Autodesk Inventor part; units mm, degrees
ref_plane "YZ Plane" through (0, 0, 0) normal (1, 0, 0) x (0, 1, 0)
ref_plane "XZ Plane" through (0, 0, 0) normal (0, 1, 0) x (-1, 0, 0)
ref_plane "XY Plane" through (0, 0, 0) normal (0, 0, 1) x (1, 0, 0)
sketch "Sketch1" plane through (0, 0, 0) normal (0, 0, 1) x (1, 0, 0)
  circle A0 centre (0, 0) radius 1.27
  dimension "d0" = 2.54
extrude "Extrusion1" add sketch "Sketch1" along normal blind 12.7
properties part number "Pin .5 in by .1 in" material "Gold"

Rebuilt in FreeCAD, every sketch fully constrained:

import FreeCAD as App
import Part
import Sketcher
from FreeCAD import Vector
Q = App.Units.Quantity

doc = App.newDocument("Part")
body = doc.addObject("PartDesign::Body", "Body")

# Sketch on XY plane
sketch1 = doc.addObject("Sketcher::SketchObject", "Sketch")
body.addObject(sketch1)
sketch1.AttachmentSupport = (doc.XY_Plane, [""])
sketch1.MapMode = "FlatFace"
sketch1.addGeometry(Part.Circle(Vector(0, 0, 0), Vector(0, 0, 1), 1.3), False)
sketch1.addConstraint(Sketcher.Constraint("Coincident", 0, 3, -1, 1))
sketch1.addConstraint(Sketcher.Constraint("Diameter", 0, Q("0.1 in")))
pad1 = doc.addObject("PartDesign::Pad", "Pad")
body.addObject(pad1)
pad1.Profile = sketch1
pad1.Length = Q("0.5 in")

doc.recompute()
